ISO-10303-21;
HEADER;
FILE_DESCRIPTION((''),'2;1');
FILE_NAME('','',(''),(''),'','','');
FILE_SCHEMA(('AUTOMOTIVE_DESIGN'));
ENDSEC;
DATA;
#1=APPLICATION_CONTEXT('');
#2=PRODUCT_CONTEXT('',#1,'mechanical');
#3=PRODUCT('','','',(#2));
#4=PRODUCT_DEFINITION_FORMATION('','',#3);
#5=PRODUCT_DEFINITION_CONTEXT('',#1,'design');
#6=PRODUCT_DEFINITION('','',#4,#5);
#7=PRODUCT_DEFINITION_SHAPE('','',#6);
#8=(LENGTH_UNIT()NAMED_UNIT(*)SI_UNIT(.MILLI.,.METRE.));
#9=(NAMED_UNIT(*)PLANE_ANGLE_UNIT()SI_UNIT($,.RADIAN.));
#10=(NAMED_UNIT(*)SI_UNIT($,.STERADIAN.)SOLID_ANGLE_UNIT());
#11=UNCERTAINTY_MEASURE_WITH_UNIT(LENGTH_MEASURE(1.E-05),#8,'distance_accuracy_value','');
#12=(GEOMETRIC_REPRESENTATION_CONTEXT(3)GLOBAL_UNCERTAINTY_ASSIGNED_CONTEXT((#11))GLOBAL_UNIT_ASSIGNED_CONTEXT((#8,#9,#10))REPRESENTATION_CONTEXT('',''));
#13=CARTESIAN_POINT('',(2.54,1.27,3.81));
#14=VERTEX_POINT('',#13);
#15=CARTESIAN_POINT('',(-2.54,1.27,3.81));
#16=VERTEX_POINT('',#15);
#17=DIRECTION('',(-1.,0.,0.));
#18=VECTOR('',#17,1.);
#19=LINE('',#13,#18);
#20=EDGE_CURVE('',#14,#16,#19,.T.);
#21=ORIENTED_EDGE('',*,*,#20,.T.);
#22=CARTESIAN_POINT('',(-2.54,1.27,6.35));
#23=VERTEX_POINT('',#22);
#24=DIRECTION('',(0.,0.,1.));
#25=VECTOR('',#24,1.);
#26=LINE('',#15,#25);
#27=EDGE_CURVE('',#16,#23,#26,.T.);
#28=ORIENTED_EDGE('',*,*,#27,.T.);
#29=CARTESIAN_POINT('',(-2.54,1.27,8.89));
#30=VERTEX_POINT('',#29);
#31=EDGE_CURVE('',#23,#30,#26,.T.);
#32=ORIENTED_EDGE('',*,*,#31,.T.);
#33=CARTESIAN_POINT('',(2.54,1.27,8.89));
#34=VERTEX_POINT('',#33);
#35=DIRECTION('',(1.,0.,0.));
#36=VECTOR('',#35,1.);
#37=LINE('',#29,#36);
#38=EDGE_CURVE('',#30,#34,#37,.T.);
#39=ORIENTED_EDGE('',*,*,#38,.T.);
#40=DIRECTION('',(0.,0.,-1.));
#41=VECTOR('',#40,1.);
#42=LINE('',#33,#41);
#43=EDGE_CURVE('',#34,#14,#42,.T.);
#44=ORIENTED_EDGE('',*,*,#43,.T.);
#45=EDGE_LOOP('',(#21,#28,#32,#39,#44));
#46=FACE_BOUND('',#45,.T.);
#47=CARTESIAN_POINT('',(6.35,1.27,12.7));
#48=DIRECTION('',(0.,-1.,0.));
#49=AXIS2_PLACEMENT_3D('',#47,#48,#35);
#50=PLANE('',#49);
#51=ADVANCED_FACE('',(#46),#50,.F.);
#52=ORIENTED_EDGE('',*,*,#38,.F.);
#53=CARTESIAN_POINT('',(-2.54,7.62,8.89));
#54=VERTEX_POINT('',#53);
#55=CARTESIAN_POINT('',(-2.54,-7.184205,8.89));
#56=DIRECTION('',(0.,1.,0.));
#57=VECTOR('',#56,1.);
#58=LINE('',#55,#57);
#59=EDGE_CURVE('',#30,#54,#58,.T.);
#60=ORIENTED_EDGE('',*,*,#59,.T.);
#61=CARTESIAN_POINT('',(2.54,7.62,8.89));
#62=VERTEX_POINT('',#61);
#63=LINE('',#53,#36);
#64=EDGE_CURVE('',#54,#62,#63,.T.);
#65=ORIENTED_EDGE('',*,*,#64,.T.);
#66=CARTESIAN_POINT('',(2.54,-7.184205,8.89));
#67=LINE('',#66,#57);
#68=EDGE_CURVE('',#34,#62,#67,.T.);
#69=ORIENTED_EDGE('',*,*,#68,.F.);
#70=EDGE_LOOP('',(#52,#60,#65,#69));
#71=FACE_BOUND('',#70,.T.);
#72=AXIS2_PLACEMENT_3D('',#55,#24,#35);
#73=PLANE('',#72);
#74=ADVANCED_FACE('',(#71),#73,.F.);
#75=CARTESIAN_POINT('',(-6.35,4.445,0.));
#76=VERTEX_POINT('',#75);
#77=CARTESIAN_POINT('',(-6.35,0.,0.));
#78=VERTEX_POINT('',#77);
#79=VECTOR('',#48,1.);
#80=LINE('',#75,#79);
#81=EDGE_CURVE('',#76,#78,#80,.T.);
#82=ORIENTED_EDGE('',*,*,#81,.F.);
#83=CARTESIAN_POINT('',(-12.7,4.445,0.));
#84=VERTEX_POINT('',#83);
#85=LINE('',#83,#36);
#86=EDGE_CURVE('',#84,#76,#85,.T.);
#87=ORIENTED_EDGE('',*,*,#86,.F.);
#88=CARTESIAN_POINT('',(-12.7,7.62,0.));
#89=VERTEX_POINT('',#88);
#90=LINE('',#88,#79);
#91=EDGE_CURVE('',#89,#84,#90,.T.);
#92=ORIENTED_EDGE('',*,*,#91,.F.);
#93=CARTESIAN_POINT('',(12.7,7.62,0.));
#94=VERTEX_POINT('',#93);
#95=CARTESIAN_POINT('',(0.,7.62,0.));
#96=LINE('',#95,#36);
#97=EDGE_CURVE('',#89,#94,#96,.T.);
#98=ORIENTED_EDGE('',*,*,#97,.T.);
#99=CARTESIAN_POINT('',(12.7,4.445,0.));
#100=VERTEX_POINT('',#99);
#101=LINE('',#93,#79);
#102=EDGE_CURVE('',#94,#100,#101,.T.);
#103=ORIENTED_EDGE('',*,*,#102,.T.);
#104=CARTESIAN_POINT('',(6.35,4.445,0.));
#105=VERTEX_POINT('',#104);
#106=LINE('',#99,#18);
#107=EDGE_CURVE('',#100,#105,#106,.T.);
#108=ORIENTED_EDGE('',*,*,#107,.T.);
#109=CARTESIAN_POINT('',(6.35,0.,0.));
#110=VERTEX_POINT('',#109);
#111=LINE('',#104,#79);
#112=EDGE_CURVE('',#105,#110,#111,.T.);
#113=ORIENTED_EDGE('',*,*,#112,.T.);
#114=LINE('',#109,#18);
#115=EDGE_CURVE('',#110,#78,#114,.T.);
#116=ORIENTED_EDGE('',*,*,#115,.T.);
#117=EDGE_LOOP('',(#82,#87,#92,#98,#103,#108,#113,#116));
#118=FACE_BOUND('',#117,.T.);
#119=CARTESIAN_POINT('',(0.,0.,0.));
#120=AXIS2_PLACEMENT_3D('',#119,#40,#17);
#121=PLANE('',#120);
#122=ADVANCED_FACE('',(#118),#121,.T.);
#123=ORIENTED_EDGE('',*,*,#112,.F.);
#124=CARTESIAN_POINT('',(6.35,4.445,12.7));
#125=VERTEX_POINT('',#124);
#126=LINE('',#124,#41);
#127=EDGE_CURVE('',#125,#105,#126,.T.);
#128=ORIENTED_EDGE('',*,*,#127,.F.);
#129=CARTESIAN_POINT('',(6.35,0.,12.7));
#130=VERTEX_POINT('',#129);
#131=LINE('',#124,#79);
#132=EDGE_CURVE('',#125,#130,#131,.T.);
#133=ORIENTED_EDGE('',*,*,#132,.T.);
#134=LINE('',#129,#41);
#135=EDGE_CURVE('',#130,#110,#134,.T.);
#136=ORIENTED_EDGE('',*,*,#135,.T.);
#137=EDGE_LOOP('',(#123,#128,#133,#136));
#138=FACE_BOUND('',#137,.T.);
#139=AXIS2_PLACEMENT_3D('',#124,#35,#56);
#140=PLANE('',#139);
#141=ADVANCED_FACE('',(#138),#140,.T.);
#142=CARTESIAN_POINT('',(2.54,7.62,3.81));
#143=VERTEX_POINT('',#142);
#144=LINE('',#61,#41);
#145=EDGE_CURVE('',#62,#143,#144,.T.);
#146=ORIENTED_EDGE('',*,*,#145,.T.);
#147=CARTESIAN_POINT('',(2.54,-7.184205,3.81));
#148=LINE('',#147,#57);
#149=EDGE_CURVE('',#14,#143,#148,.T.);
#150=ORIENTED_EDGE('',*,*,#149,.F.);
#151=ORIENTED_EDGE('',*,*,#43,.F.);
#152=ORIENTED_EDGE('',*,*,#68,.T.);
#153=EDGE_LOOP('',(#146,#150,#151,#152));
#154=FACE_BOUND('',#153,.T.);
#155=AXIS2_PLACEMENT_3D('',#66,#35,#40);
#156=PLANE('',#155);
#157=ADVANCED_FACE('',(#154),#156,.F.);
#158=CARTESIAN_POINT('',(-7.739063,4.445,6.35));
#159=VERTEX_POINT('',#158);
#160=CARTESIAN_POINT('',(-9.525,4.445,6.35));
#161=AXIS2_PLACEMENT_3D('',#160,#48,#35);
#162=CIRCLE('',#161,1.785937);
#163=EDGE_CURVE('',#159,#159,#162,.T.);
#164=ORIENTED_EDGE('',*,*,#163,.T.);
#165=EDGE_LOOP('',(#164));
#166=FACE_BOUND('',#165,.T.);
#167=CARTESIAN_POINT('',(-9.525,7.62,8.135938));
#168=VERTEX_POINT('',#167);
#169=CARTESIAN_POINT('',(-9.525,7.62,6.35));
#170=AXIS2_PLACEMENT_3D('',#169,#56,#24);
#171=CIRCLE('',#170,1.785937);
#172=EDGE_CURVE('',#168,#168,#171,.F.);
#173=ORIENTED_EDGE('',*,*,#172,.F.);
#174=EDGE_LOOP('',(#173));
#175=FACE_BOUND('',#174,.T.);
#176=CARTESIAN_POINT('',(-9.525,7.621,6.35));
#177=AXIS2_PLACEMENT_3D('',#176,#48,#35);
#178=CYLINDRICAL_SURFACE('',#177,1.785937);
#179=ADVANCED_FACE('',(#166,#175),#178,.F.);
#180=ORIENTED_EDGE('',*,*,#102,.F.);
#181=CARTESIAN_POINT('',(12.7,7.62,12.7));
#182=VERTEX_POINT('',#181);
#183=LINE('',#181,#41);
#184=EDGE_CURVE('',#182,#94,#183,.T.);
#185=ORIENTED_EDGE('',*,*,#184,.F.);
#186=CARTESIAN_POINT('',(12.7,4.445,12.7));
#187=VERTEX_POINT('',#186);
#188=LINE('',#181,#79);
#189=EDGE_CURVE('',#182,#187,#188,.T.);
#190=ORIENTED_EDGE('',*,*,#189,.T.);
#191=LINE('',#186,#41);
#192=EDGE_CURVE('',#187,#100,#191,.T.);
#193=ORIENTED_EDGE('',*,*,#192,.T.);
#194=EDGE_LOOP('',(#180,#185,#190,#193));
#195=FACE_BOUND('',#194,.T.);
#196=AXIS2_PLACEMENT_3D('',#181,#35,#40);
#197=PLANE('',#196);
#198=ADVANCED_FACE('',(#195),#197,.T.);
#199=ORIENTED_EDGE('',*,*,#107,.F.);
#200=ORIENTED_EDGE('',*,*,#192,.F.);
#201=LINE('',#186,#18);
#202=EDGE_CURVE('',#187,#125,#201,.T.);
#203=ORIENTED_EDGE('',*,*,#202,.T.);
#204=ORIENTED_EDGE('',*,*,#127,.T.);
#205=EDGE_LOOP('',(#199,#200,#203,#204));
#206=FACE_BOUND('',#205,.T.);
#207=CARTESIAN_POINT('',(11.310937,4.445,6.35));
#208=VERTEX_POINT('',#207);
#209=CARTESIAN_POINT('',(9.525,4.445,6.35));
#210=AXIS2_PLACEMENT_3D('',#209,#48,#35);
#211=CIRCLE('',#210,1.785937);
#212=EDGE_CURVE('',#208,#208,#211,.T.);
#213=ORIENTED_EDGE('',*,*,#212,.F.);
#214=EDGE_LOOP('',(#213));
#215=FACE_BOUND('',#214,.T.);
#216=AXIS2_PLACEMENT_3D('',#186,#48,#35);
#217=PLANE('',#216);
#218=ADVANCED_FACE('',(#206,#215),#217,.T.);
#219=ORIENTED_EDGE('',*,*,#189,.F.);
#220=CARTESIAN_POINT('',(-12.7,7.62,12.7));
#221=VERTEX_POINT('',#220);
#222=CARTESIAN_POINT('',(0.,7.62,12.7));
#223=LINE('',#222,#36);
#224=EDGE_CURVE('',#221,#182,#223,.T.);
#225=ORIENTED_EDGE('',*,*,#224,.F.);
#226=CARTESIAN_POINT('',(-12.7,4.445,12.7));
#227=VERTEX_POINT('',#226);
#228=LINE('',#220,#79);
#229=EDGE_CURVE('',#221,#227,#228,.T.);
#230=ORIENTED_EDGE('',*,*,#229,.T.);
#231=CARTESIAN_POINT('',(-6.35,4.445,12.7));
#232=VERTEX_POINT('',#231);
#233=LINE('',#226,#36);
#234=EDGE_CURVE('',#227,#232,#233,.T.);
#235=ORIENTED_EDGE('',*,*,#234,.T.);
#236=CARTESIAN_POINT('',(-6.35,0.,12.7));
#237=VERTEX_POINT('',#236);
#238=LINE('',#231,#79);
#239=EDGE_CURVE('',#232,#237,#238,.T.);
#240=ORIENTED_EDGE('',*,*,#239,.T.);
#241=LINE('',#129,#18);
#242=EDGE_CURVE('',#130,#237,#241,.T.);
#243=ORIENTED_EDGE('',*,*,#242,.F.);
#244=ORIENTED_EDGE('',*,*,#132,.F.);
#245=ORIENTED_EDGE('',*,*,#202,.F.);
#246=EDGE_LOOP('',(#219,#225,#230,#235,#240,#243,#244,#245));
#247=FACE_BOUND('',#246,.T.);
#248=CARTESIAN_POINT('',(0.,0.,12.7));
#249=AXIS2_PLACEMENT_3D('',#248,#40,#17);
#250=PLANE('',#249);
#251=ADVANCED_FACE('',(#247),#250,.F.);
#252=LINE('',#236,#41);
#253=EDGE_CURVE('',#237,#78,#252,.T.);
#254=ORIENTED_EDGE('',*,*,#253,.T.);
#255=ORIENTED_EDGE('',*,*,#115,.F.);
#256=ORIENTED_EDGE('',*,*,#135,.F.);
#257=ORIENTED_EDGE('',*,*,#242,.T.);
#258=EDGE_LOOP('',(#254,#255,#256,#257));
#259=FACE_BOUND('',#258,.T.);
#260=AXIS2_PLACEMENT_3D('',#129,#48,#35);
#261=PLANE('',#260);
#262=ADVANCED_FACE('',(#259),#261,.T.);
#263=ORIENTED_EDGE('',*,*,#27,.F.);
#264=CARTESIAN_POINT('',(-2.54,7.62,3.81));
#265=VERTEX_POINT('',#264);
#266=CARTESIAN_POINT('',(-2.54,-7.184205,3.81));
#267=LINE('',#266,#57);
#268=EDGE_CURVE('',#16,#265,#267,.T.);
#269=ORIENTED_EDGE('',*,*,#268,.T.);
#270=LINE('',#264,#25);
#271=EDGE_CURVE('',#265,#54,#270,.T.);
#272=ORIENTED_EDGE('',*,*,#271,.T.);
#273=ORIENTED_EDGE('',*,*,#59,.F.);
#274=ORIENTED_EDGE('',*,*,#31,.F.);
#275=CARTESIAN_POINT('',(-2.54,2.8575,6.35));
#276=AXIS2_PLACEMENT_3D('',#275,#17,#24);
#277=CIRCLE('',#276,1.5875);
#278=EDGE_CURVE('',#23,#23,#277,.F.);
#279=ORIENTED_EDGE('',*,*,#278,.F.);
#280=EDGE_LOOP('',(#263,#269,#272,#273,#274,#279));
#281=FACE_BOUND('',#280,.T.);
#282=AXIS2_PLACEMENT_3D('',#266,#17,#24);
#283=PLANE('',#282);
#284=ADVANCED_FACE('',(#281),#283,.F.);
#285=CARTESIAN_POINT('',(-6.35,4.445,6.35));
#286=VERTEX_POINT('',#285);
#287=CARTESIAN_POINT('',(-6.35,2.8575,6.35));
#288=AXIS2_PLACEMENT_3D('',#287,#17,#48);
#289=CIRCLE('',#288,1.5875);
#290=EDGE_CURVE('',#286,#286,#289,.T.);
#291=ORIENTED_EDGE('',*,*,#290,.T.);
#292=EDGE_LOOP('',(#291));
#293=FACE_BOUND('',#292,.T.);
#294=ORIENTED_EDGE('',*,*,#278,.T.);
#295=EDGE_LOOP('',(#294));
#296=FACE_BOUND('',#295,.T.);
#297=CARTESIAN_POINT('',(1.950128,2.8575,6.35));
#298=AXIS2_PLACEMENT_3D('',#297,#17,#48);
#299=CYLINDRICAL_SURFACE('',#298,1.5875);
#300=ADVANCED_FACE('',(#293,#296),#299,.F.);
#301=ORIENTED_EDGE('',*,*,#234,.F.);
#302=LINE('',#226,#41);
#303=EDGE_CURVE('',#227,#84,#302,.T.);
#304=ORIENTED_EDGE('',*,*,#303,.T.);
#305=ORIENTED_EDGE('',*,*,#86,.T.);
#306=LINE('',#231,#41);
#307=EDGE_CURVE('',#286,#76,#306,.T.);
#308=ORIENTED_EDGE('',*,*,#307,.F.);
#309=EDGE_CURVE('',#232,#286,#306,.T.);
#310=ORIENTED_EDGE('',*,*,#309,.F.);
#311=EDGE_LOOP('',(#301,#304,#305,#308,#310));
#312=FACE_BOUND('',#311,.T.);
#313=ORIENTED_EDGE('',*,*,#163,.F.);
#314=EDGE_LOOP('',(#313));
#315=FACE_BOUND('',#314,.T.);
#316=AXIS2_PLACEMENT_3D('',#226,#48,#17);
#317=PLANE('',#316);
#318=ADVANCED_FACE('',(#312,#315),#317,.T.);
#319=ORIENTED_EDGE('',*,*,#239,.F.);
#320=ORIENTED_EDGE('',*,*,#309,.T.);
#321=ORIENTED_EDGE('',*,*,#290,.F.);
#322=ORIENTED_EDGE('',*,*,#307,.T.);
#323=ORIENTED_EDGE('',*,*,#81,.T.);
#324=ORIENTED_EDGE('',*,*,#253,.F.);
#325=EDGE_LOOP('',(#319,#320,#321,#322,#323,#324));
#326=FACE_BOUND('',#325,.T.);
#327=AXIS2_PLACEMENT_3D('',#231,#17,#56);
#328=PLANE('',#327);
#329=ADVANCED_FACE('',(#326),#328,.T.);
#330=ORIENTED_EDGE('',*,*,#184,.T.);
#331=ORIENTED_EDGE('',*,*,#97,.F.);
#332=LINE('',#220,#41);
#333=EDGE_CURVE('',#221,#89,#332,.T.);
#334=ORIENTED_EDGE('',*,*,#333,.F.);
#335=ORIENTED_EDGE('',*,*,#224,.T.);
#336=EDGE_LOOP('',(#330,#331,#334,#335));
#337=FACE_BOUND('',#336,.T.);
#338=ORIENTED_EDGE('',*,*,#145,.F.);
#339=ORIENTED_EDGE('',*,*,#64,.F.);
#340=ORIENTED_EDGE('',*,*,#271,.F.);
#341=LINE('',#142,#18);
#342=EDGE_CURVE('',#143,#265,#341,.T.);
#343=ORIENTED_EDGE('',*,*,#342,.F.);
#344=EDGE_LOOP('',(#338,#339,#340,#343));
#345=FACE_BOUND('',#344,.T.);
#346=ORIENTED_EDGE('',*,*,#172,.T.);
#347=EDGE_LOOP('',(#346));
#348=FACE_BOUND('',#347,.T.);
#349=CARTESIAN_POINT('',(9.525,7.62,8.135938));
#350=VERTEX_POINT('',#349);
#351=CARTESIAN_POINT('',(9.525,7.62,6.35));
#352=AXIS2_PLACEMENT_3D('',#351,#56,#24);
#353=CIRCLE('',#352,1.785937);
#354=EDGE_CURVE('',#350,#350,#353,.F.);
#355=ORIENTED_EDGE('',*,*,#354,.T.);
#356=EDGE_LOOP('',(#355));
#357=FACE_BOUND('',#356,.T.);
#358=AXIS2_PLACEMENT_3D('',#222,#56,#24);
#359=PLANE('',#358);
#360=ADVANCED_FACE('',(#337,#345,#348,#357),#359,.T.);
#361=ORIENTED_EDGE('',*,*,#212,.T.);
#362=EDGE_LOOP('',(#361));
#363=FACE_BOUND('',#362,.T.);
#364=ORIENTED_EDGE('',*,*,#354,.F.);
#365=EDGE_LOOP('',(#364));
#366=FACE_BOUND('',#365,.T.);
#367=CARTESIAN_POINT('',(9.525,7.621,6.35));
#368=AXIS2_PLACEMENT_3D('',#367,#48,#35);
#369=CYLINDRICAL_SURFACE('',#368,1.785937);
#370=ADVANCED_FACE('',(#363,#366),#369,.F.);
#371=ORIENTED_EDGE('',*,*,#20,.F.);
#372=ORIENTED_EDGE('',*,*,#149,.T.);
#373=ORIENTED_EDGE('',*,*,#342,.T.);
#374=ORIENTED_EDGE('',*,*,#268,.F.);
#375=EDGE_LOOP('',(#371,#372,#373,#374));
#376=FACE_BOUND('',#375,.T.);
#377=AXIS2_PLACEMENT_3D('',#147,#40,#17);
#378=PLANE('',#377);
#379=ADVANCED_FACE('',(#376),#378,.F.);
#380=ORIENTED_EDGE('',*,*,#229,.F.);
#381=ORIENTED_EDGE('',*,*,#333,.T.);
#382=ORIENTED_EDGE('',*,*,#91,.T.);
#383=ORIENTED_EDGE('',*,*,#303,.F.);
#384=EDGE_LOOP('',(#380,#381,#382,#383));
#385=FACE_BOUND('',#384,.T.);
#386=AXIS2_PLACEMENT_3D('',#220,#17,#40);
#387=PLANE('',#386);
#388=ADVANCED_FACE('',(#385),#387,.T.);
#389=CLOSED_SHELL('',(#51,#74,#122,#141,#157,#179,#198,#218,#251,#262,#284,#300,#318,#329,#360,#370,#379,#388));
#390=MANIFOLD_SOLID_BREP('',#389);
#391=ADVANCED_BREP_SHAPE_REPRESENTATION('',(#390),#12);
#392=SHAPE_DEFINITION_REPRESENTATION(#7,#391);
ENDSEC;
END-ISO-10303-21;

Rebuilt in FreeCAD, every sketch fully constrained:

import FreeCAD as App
import Part
import Sketcher

V = App.Vector
Q = App.Units.Quantity

doc = App.newDocument("Part")
body = doc.addObject("PartDesign::Body", "Body")

# Sketch on XY plane
sketch1 = body.newObject("Sketcher::SketchObject", "Sketch")
sketch1.AttachmentSupport = (doc.getObject("XY_Plane"), [""])
sketch1.MapMode = "FlatFace"
sketch1.addGeometry([
    Part.LineSegment(V(0, 7.62, 0), V(0, 0, 0)),  # 0
    Part.LineSegment(V(0, 0, 0), V(6.35, 0, 0)),  # 1
    Part.LineSegment(V(6.35, 0, 0), V(6.35, 4.445, 0)),  # 2
    Part.LineSegment(V(6.35, 4.445, 0), V(12.7, 4.445, 0)),  # 3
    Part.LineSegment(V(12.7, 4.445, 0), V(12.7, 7.62, 0)),  # 4
    Part.LineSegment(V(12.7, 7.62, 0), V(0, 7.62, 0)),  # 5
], False)
sketch1.addConstraint([
    Sketcher.Constraint("Coincident", 0, 2, 1, 1),
    Sketcher.Constraint("Coincident", 1, 2, 2, 1),
    Sketcher.Constraint("Coincident", 2, 2, 3, 1),
    Sketcher.Constraint("Coincident", 3, 2, 4, 1),
    Sketcher.Constraint("Coincident", 4, 2, 5, 1),
    Sketcher.Constraint("Coincident", 5, 2, 0, 1),
    Sketcher.Constraint("Vertical", 0),
    Sketcher.Constraint("Horizontal", 1),
    Sketcher.Constraint("Vertical", 2),
    Sketcher.Constraint("Horizontal", 3),
    Sketcher.Constraint("Vertical", 4),
    Sketcher.Constraint("Horizontal", 5),
    Sketcher.Constraint("Coincident", 0, 2, -1, 1),
    Sketcher.Constraint("Equal", 1, 3),
    Sketcher.Constraint("DistanceX", 5, 2, 5, 1, Q("0.5 in")),
    Sketcher.Constraint("DistanceY", 0, 2, 0, 1, Q("0.3 in")),
    Sketcher.Constraint("DistanceY", 2, 1, 2, 2, Q("0.175 in")),
])
pad1 = body.newObject("PartDesign::Pad", "Pad")
pad1.Profile = sketch1
pad1.Length = Q("0.5 in")
body2 = doc.addObject("PartDesign::Body", "Body001")
doc.recompute()

body2.BaseFeature = body
doc.recompute()

mirroring = doc.addObject("Part::Mirroring", "Mirroring")
mirroring.Source = body
mirroring.Base = V(0, 0, 12.7)
mirroring.Normal = V(-1, 0, 0)
body3 = doc.addObject("PartDesign::Body", "Body002")
body3.BaseFeature = mirroring
boolean = body2.newObject("PartDesign::Boolean", "Boolean")
boolean.Type = "Fuse"
boolean.addObjects([body3])
doc.recompute()

# Sketch on XZ plane
sketch2 = body2.newObject("Sketcher::SketchObject", "Sketch001")
sketch2.AttachmentSupport = (doc.getObject("XZ_Plane001"), [""])
sketch2.MapMode = "FlatFace"
sketch2.AttachmentOffset = App.Placement(V(0, 0, -0.3 * 25.4), App.Rotation())
sketch2.addGeometry([
    Part.LineSegment(V(-2.54, 3.81, 0), V(-2.54, 8.89, 0)),
    Part.LineSegment(V(-2.54, 8.89, 0), V(2.54, 8.89, 0)),
    Part.LineSegment(V(2.54, 8.89, 0), V(2.54, 3.81, 0)),
    Part.LineSegment(V(2.54, 3.81, 0), V(-2.54, 3.81, 0)),
], False)
sketch2.addConstraint([
    Sketcher.Constraint("Coincident", 0, 2, 1, 1),
    Sketcher.Constraint("Coincident", 1, 2, 2, 1),
    Sketcher.Constraint("Coincident", 2, 2, 3, 1),
    Sketcher.Constraint("Coincident", 3, 2, 0, 1),
    Sketcher.Constraint("Vertical", 0),
    Sketcher.Constraint("Horizontal", 1),
    Sketcher.Constraint("Vertical", 2),
    Sketcher.Constraint("Horizontal", 3),
    Sketcher.Constraint("Equal", 3, 0),
    Sketcher.Constraint("DistanceX", 1, 1, 1, 2, Q("0.2 in")),
    Sketcher.Constraint("DistanceX", 0, 2, -1, 1, Q("0.1 in")),
    Sketcher.Constraint("DistanceY", -1, 1, 0, 2, Q("0.35 in")),
])
pocket1 = body2.newObject("PartDesign::Pocket", "Pocket")
pocket1.Profile = sketch2
pocket1.Length = Q("0.25 in")
pocket1.Reversed = True

# Sketch on YZ plane
sketch3 = body2.newObject("Sketcher::SketchObject", "Sketch002")
sketch3.AttachmentSupport = (doc.getObject("YZ_Plane001"), [""])
sketch3.MapMode = "FlatFace"
sketch3.AttachmentOffset = App.Placement(V(0, 0, -0.25 * 25.4), App.Rotation())
sketch3.addGeometry(Part.Circle(V(2.8575, 6.35, 0), V(0, 0, 1), 1.5875), False)
sketch3.addConstraint([
    Sketcher.Constraint("Diameter", 0, Q("0.125 in")),
    Sketcher.Constraint("DistanceY", -1, 1, 0, 3, Q("0.25 in")),
    Sketcher.Constraint("DistanceX", -1, 1, 0, 3, Q("0.1125 in")),
])
pocket2 = body2.newObject("PartDesign::Pocket", "Pocket001")
pocket2.Profile = sketch3
pocket2.Length = Q("0.15 in")
pocket2.Reversed = True

# Sketch on XZ plane
sketch4 = body2.newObject("Sketcher::SketchObject", "Sketch003")
sketch4.AttachmentSupport = (doc.getObject("XZ_Plane001"), [""])
sketch4.MapMode = "FlatFace"
sketch4.AttachmentOffset = App.Placement(V(0, 0, -0.175 * 25.4), App.Rotation())
sketch4.addGeometry(Part.Circle(V(9.525, 6.35, 0), V(0, 0, 1), 1.785937), False)
sketch4.addConstraint([
    Sketcher.Constraint("Diameter", 0, Q("0.140625 in")),
    Sketcher.Constraint("DistanceY", -1, 1, 0, 3, Q("0.25 in")),
    Sketcher.Constraint("DistanceX", -1, 1, 0, 3, Q("0.375 in")),
])
pocket3 = body2.newObject("PartDesign::Pocket", "Pocket002")
pocket3.Profile = sketch4
pocket3.Type = "UpToFirst"

# Sketch on XZ plane
sketch5 = body2.newObject("Sketcher::SketchObject", "Sketch004")
sketch5.AttachmentSupport = (doc.getObject("XZ_Plane001"), [""])
sketch5.MapMode = "FlatFace"
sketch5.AttachmentOffset = App.Placement(V(0, 0, -0.175 * 25.4), App.Rotation())
sketch5.addGeometry(Part.Circle(V(-9.525, 6.35, 0), V(0, 0, 1), 1.785937), False)
sketch5.addConstraint([
    Sketcher.Constraint("Diameter", 0, Q("0.140625 in")),
    Sketcher.Constraint("DistanceY", -1, 1, 0, 3, Q("0.25 in")),
    Sketcher.Constraint("DistanceX", 0, 3, -1, 1, Q("0.375 in")),
])
pocket4 = body2.newObject("PartDesign::Pocket", "Pocket003")
pocket4.Profile = sketch5
pocket4.Type = "UpToFirst"
mirroring.Visibility = False

doc.recompute()
